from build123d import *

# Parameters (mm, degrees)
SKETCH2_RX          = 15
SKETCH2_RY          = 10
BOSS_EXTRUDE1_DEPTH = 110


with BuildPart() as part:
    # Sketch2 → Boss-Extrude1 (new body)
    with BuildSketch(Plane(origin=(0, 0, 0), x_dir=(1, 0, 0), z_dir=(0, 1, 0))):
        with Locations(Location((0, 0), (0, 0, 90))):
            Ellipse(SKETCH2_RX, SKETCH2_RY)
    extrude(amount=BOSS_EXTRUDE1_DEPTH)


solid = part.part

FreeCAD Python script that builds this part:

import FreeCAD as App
import Part
import Sketcher
from FreeCAD import Vector

doc = App.newDocument("Part")
body = doc.addObject("PartDesign::Body", "Body")

# Sketch on XZ plane
sketch1 = body.newObject("Sketcher::SketchObject", "Sketch")
sketch1.AttachmentSupport = (doc.getObject("XZ_Plane"), [""])
sketch1.MapMode = "FlatFace"
sketch1.addGeometry(Part.Ellipse(Vector(0, -15, 0), Vector(10, 0, 0), Vector(0, 0, 0)), False)
sketch1.addConstraint(Sketcher.Constraint("Block", 0))
pad1 = body.newObject("PartDesign::Pad", "Pad")
pad1.Profile = sketch1
pad1.Length = 110
pad1.Reversed = True

doc.recompute()
